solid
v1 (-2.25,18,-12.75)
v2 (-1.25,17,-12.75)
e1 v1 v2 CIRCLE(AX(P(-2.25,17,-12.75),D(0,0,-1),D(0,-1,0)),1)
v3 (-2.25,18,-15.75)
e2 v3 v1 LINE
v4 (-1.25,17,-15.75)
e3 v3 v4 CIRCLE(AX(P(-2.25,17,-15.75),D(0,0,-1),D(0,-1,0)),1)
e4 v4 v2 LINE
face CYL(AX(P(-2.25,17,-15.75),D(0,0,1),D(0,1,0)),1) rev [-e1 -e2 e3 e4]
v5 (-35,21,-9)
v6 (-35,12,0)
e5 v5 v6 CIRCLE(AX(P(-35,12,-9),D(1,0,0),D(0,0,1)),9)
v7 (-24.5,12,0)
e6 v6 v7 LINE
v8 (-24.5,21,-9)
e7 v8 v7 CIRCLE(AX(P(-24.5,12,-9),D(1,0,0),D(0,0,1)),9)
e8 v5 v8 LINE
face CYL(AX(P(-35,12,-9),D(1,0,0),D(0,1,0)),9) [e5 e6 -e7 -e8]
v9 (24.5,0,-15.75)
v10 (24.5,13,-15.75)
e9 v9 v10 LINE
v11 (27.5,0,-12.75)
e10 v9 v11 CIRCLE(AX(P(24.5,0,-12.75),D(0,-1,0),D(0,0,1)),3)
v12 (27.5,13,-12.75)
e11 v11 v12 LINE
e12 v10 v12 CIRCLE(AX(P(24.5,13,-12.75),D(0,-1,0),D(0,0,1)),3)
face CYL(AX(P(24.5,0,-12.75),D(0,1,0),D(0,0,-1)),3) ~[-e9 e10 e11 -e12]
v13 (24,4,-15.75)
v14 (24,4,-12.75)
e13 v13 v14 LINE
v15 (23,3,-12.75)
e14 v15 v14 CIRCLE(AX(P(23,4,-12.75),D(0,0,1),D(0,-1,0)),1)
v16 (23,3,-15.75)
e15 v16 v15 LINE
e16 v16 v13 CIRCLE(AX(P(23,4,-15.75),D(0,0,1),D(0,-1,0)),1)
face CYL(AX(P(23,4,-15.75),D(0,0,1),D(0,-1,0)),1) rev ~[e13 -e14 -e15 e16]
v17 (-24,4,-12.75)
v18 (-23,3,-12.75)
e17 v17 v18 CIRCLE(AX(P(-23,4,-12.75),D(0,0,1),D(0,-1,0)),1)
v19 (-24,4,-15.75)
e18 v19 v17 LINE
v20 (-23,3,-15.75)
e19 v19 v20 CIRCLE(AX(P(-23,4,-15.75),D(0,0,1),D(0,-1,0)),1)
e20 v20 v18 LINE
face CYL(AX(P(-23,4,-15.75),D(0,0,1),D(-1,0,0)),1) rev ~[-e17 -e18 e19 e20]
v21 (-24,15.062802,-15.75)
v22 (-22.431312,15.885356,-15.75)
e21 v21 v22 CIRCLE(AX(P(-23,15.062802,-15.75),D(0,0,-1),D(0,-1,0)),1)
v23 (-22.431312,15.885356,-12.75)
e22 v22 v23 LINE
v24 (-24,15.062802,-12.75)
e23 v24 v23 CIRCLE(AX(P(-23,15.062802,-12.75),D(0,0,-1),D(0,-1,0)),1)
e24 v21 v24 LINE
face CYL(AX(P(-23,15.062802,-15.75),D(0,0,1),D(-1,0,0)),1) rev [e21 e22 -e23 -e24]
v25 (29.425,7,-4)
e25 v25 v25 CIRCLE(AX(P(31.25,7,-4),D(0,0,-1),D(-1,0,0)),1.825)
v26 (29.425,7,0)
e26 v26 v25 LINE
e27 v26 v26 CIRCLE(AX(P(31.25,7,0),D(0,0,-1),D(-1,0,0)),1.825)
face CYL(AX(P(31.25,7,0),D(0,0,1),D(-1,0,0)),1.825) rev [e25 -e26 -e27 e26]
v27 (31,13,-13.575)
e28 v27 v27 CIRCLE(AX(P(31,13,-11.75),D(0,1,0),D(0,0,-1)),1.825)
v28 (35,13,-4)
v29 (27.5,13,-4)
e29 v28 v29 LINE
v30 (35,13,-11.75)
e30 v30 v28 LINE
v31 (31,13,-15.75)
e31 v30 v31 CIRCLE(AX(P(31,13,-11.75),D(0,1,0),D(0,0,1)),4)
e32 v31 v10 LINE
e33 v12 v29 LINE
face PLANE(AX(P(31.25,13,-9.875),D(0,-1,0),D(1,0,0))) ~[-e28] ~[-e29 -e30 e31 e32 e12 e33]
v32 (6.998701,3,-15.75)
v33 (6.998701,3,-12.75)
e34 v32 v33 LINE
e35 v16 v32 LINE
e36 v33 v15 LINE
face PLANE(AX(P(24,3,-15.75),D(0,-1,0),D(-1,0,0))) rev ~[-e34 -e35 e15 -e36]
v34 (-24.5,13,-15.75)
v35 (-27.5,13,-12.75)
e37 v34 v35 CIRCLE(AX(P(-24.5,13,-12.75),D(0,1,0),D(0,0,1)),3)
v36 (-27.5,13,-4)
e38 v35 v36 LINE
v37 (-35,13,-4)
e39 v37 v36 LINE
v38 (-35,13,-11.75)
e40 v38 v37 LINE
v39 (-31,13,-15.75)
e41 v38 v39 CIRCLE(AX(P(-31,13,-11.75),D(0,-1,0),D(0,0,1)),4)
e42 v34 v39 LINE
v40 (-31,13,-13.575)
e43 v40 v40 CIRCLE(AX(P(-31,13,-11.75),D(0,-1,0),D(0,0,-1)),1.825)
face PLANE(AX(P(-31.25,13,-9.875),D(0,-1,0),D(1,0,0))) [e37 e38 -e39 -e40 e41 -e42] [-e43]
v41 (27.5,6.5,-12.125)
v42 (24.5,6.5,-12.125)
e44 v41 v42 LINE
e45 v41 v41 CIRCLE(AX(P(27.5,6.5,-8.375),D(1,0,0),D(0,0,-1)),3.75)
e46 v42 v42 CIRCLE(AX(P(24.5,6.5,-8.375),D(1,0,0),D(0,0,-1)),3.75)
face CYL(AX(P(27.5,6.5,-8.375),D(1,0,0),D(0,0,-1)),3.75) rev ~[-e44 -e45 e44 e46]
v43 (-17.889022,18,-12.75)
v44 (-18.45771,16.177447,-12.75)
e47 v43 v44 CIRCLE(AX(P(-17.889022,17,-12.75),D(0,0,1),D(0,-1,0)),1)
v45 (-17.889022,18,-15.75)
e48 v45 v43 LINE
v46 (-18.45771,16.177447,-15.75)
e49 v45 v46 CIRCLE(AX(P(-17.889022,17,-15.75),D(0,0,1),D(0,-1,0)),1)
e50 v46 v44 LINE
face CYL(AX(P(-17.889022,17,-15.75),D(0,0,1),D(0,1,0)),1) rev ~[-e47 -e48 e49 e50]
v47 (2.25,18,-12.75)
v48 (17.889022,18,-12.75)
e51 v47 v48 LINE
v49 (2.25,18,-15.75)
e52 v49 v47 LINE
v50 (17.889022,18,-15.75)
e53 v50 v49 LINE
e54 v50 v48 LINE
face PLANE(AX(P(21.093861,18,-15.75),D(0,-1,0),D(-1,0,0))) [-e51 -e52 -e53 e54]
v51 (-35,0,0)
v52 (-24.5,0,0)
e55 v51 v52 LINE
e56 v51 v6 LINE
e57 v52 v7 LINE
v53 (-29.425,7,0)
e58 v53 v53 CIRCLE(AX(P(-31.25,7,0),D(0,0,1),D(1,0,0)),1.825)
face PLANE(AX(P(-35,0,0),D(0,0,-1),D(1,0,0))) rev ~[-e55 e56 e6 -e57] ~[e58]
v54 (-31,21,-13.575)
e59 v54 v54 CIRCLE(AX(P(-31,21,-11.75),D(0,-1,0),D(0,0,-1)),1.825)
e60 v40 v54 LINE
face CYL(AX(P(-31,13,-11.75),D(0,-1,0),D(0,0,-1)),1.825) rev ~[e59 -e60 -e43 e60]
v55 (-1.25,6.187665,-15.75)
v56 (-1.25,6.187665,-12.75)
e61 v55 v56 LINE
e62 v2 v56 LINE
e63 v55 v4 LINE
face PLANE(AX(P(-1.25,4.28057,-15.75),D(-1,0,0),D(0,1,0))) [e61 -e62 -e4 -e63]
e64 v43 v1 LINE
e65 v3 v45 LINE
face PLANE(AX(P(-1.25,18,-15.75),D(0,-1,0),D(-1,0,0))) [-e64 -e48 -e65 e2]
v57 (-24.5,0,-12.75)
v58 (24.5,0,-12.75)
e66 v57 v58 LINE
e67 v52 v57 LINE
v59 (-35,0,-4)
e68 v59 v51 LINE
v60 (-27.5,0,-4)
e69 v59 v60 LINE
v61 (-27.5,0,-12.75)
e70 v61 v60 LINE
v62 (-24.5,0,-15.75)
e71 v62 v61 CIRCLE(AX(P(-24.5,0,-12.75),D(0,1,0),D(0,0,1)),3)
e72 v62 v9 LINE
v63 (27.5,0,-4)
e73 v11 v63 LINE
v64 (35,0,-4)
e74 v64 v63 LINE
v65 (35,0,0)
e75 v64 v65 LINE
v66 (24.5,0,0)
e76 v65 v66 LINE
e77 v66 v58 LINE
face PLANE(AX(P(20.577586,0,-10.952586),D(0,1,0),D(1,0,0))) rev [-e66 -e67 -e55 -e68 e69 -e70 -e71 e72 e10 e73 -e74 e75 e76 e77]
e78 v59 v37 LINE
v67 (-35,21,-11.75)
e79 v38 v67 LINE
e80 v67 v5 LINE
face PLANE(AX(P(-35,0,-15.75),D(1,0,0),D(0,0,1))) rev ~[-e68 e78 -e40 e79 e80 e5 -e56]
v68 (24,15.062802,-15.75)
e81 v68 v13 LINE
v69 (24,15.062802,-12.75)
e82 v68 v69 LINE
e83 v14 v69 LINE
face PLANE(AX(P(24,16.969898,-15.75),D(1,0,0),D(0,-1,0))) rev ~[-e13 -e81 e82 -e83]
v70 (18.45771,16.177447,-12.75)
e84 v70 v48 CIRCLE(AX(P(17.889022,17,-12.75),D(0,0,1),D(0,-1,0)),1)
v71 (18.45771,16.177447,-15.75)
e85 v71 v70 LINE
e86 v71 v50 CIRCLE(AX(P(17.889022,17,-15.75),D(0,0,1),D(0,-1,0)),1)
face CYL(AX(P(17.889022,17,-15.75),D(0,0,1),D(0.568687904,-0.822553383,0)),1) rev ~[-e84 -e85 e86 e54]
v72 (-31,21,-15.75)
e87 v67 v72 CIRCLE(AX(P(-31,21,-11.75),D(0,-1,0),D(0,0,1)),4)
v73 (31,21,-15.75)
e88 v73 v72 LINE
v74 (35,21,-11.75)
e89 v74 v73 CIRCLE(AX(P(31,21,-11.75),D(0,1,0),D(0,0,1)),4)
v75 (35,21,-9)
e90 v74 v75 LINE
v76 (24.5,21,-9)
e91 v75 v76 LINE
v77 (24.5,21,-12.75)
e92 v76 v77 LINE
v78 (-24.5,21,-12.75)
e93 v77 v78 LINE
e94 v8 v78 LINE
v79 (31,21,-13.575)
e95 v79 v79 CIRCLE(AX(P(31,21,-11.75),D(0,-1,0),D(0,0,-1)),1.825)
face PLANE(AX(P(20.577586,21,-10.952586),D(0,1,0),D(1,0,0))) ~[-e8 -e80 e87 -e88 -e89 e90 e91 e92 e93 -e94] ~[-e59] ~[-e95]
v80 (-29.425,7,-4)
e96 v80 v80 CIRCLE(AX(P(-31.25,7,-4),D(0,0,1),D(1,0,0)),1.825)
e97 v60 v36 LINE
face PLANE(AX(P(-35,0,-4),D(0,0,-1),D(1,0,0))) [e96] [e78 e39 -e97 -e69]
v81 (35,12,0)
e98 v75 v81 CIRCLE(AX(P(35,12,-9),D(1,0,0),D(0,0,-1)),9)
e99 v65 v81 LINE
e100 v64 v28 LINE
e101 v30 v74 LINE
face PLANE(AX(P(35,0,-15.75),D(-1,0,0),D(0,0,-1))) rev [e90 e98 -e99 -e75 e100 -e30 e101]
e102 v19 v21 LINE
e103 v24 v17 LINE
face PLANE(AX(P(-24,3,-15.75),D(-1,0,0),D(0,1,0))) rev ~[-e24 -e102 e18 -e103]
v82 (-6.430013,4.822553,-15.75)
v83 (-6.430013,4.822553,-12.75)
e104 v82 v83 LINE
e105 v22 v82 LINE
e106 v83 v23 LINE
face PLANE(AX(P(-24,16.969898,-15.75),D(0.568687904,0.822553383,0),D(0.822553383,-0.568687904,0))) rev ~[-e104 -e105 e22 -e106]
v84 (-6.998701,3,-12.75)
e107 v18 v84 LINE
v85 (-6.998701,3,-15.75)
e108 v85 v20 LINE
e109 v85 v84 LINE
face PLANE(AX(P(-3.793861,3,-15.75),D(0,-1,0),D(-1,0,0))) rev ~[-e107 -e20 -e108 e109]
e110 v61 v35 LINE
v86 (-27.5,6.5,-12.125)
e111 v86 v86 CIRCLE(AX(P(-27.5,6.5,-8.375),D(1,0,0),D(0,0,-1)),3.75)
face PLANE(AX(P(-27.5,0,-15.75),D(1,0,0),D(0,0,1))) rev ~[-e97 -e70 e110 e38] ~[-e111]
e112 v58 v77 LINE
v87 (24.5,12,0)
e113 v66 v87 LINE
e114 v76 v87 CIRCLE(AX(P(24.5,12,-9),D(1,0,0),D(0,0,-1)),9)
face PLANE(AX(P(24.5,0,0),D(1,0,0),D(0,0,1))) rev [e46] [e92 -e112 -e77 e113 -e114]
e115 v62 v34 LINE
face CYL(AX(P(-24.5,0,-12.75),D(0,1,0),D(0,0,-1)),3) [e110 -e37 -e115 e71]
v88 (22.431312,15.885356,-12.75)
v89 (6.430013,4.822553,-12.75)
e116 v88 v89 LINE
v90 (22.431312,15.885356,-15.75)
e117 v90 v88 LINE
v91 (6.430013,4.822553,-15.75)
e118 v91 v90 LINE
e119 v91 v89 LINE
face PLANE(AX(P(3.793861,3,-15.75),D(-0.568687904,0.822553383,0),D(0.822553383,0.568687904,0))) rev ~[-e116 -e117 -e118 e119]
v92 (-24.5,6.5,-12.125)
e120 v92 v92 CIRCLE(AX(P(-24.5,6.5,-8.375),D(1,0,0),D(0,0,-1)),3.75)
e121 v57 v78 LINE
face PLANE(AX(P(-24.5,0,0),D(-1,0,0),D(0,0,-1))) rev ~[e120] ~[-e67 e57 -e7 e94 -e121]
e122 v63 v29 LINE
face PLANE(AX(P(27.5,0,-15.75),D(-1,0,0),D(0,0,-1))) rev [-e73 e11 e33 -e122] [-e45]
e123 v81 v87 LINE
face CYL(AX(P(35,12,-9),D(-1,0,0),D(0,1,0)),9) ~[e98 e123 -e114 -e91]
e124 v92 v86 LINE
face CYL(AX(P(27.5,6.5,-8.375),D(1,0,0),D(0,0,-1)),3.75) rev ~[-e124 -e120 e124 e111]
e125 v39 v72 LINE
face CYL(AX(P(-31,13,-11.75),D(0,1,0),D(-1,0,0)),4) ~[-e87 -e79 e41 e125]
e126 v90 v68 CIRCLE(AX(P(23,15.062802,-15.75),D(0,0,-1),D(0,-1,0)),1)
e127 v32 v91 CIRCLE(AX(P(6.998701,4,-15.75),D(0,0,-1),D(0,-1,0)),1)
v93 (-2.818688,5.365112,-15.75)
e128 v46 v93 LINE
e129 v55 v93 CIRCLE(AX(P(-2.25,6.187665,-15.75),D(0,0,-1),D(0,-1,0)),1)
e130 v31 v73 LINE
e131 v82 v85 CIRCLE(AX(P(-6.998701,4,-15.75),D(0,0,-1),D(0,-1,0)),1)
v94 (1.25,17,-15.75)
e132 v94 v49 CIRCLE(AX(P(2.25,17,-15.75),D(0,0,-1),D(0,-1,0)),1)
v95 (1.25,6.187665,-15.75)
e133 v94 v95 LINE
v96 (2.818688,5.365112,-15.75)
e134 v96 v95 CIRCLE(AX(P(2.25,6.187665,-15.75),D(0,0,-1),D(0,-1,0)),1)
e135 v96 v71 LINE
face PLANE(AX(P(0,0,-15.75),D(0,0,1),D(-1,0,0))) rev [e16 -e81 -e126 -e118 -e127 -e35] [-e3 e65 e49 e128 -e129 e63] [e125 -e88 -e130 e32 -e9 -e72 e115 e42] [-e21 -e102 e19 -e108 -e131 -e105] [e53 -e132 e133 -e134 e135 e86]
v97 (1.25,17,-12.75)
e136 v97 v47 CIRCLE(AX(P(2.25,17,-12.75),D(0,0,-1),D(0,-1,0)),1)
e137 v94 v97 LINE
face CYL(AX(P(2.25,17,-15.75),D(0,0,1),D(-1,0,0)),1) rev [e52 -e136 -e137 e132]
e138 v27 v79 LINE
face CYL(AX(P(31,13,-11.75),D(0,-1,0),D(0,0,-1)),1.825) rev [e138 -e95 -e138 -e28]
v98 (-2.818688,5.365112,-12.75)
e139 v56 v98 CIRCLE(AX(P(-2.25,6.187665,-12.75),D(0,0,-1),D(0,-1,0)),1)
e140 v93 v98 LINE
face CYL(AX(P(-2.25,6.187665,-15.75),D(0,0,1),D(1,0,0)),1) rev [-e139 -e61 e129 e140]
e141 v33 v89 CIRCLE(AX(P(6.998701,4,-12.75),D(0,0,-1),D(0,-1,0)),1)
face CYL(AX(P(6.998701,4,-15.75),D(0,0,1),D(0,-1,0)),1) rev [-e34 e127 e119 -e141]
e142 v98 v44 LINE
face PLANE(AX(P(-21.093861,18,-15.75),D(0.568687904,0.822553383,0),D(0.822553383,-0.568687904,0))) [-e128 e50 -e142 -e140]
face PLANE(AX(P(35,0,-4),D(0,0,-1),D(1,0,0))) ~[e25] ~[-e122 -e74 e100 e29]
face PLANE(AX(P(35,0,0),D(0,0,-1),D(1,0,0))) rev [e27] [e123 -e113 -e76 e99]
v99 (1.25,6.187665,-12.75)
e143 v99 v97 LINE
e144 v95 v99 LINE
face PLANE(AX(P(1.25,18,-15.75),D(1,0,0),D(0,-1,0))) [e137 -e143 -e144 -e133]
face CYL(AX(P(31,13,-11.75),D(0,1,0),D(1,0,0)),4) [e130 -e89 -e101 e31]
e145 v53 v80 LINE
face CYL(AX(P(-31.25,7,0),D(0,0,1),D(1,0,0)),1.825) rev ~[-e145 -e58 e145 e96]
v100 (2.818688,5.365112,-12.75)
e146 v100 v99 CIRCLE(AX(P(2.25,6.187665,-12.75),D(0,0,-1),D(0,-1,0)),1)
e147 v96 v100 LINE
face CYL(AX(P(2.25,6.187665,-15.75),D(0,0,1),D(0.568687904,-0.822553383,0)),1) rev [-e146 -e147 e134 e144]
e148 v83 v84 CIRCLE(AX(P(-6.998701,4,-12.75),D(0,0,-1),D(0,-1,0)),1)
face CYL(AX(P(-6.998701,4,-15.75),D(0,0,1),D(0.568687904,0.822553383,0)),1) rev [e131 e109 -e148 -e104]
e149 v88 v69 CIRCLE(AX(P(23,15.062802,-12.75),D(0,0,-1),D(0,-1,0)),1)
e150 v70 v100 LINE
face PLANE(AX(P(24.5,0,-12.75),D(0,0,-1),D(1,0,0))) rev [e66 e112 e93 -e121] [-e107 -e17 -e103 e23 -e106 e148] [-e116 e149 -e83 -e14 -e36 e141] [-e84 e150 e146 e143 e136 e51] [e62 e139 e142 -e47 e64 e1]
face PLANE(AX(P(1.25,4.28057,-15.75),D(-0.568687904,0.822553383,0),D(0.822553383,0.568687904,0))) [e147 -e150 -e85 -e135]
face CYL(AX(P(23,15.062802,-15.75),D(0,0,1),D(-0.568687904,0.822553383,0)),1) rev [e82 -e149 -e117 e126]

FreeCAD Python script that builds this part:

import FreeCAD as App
import Part
import Sketcher

V = App.Vector


def edges_at(feature, points):
    """Names of the edges that pass closest to the given points."""
    edges = feature.Shape.Edges
    near = lambda p: min(range(len(edges)), key=lambda i: edges[i].distToShape(Part.Vertex(*p))[0])
    return sorted({f"Edge{near(p) + 1}" for p in points})


def add_polygon(sketch, points):
    """Adds a closed chain of lines whose ends are joined by coincident constraints."""
    first, n = sketch.GeometryCount, len(points)
    for a, b in zip(points, points[1:] + points[:1]):
        sketch.addGeometry(Part.LineSegment(App.Vector(*a, 0), App.Vector(*b, 0)), False)
    for i in range(n):
        sketch.addConstraint(Sketcher.Constraint("Coincident", first + i, 2, first + (i + 1) % n, 1))

doc = App.newDocument("Part")
params = doc.addObject("Spreadsheet::Sheet", "Params")
for row, (alias, value) in enumerate([
    ("sketch1_width", "35 mm"),
    ("sketch1_height", "3 mm"),
    ("sketch1_width2", "24.5 mm"),
    ("sketch1_height2", "12.75 mm"),
    ("pad1_length", "21 mm"),
    ("sketch2_diameter", "3.65 mm"),
    ("pocket1_length", "4 mm"),
    ("sketch3_width", "7.5 mm"),
    ("sketch3_height", "11.75 mm"),
    ("pocket2_length", "13 mm"),
    ("fillet_radius", "4 mm"),
    ("sketch4_diameter", "3.65 mm"),
    ("fillet2_radius", "4 mm"),
    ("fillet3_radius", "1 mm"),
    ("fillet4_radius", "9 mm"),
    ("fillet5_radius", "3 mm"),
    ("sketch6_diameter", "7.5 mm"),
], start=1):
    params.set(f"A{row}", alias)
    params.set(f"B{row}", "=" + value)
    params.setAlias(f"B{row}", alias)

body = doc.addObject("PartDesign::Body", "Body")

sketch1 = doc.addObject("Sketcher::SketchObject", "Sketch")
body.addObject(sketch1)
sketch1.AttachmentSupport = (doc.XZ_Plane, [""])
sketch1.MapMode = "FlatFace"
add_polygon(sketch1, [(-24.5, 0), (-24.5, -12.75), (0, -12.75), (0, -15.75), (-35, -15.75), (-35, 0)])
sketch1.addConstraint([
    Sketcher.Constraint("Vertical", 0),
    Sketcher.Constraint("Horizontal", 1),
    Sketcher.Constraint("Vertical", 2),
    Sketcher.Constraint("Horizontal", 3),
    Sketcher.Constraint("Vertical", 4),
    Sketcher.Constraint("Horizontal", 5),
    Sketcher.Constraint("PointOnObject", 1, 2, -2),
    Sketcher.Constraint("PointOnObject", 4, 2, -1),
    Sketcher.Constraint("DistanceX", 3, 2, 3, 1, 35.0),
    Sketcher.Constraint("DistanceY", 2, 2, 2, 1, 3.0),
    Sketcher.Constraint("DistanceX", 1, 1, 1, 2, 24.5),
    Sketcher.Constraint("DistanceY", 0, 2, 0, 1, 12.75),
])
sketch1.setExpression("Constraints[14]", "Params.sketch1_width")
sketch1.setExpression("Constraints[15]", "Params.sketch1_height")
sketch1.setExpression("Constraints[16]", "Params.sketch1_width2")
sketch1.setExpression("Constraints[17]", "Params.sketch1_height2")
pad1 = doc.addObject("PartDesign::Pad", "Pad")
body.addObject(pad1)
pad1.Profile = sketch1
pad1.setExpression("Length", "Params.pad1_length")
pad1.Reversed = True

sketch2 = doc.addObject("Sketcher::SketchObject", "Sketch001")
body.addObject(sketch2)
sketch2.AttachmentSupport = (doc.XY_Plane, [""])
sketch2.MapMode = "FlatFace"
sketch2.addGeometry(Part.Circle(V(-31.25, 7, 0), V(0, 0, 1), 1.825), False)
sketch2.addConstraint([
    Sketcher.Constraint("Diameter", 0, 3.65),
    Sketcher.Constraint("DistanceY", -1, 1, 0, 3, 7.0),
    Sketcher.Constraint("DistanceX", 0, 3, -1, 1, 31.25),
])
sketch2.setExpression("Constraints[0]", "Params.sketch2_diameter")
pocket1 = doc.addObject("PartDesign::Pocket", "Pocket")
body.addObject(pocket1)
pocket1.Profile = sketch2
pocket1.setExpression("Length", "Params.pocket1_length")

sketch3 = doc.addObject("Sketcher::SketchObject", "Sketch002")
body.addObject(sketch3)
sketch3.AttachmentSupport = (doc.XZ_Plane, [""])
sketch3.MapMode = "FlatFace"
add_polygon(sketch3, [(-35, -4), (-35, -15.75), (-27.5, -15.75), (-27.5, -4)])
sketch3.addConstraint([
    Sketcher.Constraint("Vertical", 0),
    Sketcher.Constraint("Horizontal", 1),
    Sketcher.Constraint("Vertical", 2),
    Sketcher.Constraint("Horizontal", 3),
    Sketcher.Constraint("DistanceX", 1, 1, 1, 2, 7.5),
    Sketcher.Constraint("DistanceX", 0, 2, -1, 1, 35.0),
    Sketcher.Constraint("DistanceY", 2, 2, -1, 1, 4.0),
    Sketcher.Constraint("DistanceY", 0, 2, 0, 1, 11.75),
])
sketch3.setExpression("Constraints[8]", "Params.sketch3_width")
sketch3.setExpression("Constraints[11]", "Params.sketch3_height")
pocket2 = doc.addObject("PartDesign::Pocket", "Pocket001")
body.addObject(pocket2)
pocket2.Profile = sketch3
pocket2.setExpression("Length", "Params.pocket2_length")
doc.recompute()

fillet = doc.addObject("PartDesign::Fillet", "Fillet")
body.addObject(fillet)
fillet.Base = (pocket2, edges_at(pocket2, [(-35, 17, -15.75)]))
fillet.setExpression("Radius", "Params.fillet_radius")

sketch4 = doc.addObject("Sketcher::SketchObject", "Sketch003")
body.addObject(sketch4)
sketch4.AttachmentSupport = (doc.XZ_Plane, [""])
sketch4.MapMode = "FlatFace"
sketch4.AttachmentOffset = App.Placement(V(0, 0, -13), App.Rotation())
sketch4.addGeometry(Part.Circle(V(-31, -11.75, 0), V(0, 0, 1), 1.825), False)
sketch4.addConstraint([
    Sketcher.Constraint("Diameter", 0, 3.65),
    Sketcher.Constraint("DistanceX", 0, 3, -1, 1, 31.0),
    Sketcher.Constraint("DistanceY", 0, 3, -1, 1, 11.75),
])
sketch4.setExpression("Constraints[0]", "Params.sketch4_diameter")
pocket3 = doc.addObject("PartDesign::Pocket", "Pocket002")
body.addObject(pocket3)
pocket3.Profile = sketch4
pocket3.Type = "ThroughAll"
doc.recompute()

mirrored = doc.addObject("PartDesign::Mirrored", "Mirrored")
body.addObject(mirrored)
mirrored.Originals = [pad1, pocket1, pocket2, pocket3]
mirrored.MirrorPlane = (doc.YZ_Plane, [""])
body.Tip = mirrored
doc.recompute()

fillet2 = doc.addObject("PartDesign::Fillet", "Fillet001")
body.addObject(fillet2)
fillet2.Base = (mirrored, edges_at(mirrored, [(35, 17, -15.75)]))
fillet2.setExpression("Radius", "Params.fillet2_radius")

sketch5 = doc.addObject("Sketcher::SketchObject", "Sketch004")
body.addObject(sketch5)
sketch5.AttachmentSupport = (doc.XY_Plane, [""])
sketch5.MapMode = "FlatFace"
sketch5.AttachmentOffset = App.Placement(V(0, 0, -15.75), App.Rotation())
add_polygon(sketch5, [(24, 3), (3.793861, 3), (24, 16.969898)])
add_polygon(sketch5, [(1.25, 18), (21.093861, 18), (1.25, 4.28057)])
add_polygon(sketch5, [(-24, 3), (-24, 16.969898), (-3.793861, 3)])
add_polygon(sketch5, [(-1.25, 4.28057), (-21.093861, 18), (-1.25, 18)])
sketch5.addConstraint([
    Sketcher.Constraint("Horizontal", 0),
    Sketcher.Constraint("Vertical", 2),
    Sketcher.Constraint("Horizontal", 3),
    Sketcher.Constraint("Vertical", 5),
    Sketcher.Constraint("Vertical", 6),
    Sketcher.Constraint("Horizontal", 8),
    Sketcher.Constraint("Horizontal", 10),
    Sketcher.Constraint("Vertical", 11),
    Sketcher.Constraint("Symmetric", 1, 2, 6, 2, -2),
    Sketcher.Constraint("Symmetric", 0, 2, 7, 2, -2),
    Sketcher.Constraint("Symmetric", 3, 2, 9, 2, -2),
    Sketcher.Constraint("Symmetric", 4, 2, 11, 2, -2),
    Sketcher.Constraint("Parallel", 1, 4),
    Sketcher.Constraint("DistanceY", -1, 1, 0, 2, 3.0),
    Sketcher.Constraint("DistanceX", -1, 1, 1, 2, 24.0),
    Sketcher.Constraint("DistanceY", -1, 1, 3, 2, 18.0),
    Sketcher.Constraint("DistanceX", 0, 2, 3, 2, 17.3),
    Sketcher.Constraint("DistanceX", 10, 2, 5, 2, 2.5),
    Sketcher.Constraint("DistanceX", 0, 2, 0, 1, 20.206139),
    Sketcher.Constraint("DistanceY", 5, 1, 5, 2, 13.71943),
])
pocket4 = doc.addObject("PartDesign::Pocket", "Pocket003")
body.addObject(pocket4)
pocket4.Profile = sketch5
pocket4.Type = "ThroughAll"
pocket4.Reversed = True
doc.recompute()

fillet3 = doc.addObject("PartDesign::Fillet", "Fillet002")
body.addObject(fillet3)
fillet3.Base = (pocket4, edges_at(pocket4, [
    (-24, 3, -14.25),
    (-3.794, 3, -14.25),
    (-24, 16.97, -14.25),
    (24, 3, -14.25),
    (24, 16.97, -14.25),
    (3.794, 3, -14.25),
    (-1.25, 18, -14.25),
    (-21.094, 18, -14.25),
    (-1.25, 4.281, -14.25),
    (1.25, 4.281, -14.25),
    (21.094, 18, -14.25),
    (1.25, 18, -14.25),
]))
fillet3.setExpression("Radius", "Params.fillet3_radius")
doc.recompute()

fillet4 = doc.addObject("PartDesign::Fillet", "Fillet003")
body.addObject(fillet4)
fillet4.Base = (fillet3, edges_at(fillet3, [(-29.75, 21, 0), (29.75, 21, 0)]))
fillet4.setExpression("Radius", "Params.fillet4_radius")
doc.recompute()

fillet5 = doc.addObject("PartDesign::Fillet", "Fillet004")
body.addObject(fillet5)
fillet5.Base = (fillet4, edges_at(fillet4, [(-27.5, 6.5, -15.75), (27.5, 6.5, -15.75)]))
fillet5.setExpression("Radius", "Params.fillet5_radius")

sketch6 = doc.addObject("Sketcher::SketchObject", "Sketch005")
body.addObject(sketch6)
sketch6.AttachmentSupport = (doc.YZ_Plane, [""])
sketch6.MapMode = "FlatFace"
sketch6.AttachmentOffset = App.Placement(V(0, 0, 27.5), App.Rotation())
sketch6.addGeometry(Part.Circle(V(6.5, -8.375, 0), V(0, 0, 1), 3.75), False)
sketch6.addConstraint([
    Sketcher.Constraint("Diameter", 0, 7.5),
    Sketcher.Constraint("DistanceX", -1, 1, 0, 3, 6.5),
    Sketcher.Constraint("DistanceY", 0, 3, -1, 1, 8.375),
])
sketch6.setExpression("Constraints[0]", "Params.sketch6_diameter")
pocket5 = doc.addObject("PartDesign::Pocket", "Pocket004")
body.addObject(pocket5)
pocket5.Profile = sketch6
pocket5.Type = "ThroughAll"

doc.recompute()
